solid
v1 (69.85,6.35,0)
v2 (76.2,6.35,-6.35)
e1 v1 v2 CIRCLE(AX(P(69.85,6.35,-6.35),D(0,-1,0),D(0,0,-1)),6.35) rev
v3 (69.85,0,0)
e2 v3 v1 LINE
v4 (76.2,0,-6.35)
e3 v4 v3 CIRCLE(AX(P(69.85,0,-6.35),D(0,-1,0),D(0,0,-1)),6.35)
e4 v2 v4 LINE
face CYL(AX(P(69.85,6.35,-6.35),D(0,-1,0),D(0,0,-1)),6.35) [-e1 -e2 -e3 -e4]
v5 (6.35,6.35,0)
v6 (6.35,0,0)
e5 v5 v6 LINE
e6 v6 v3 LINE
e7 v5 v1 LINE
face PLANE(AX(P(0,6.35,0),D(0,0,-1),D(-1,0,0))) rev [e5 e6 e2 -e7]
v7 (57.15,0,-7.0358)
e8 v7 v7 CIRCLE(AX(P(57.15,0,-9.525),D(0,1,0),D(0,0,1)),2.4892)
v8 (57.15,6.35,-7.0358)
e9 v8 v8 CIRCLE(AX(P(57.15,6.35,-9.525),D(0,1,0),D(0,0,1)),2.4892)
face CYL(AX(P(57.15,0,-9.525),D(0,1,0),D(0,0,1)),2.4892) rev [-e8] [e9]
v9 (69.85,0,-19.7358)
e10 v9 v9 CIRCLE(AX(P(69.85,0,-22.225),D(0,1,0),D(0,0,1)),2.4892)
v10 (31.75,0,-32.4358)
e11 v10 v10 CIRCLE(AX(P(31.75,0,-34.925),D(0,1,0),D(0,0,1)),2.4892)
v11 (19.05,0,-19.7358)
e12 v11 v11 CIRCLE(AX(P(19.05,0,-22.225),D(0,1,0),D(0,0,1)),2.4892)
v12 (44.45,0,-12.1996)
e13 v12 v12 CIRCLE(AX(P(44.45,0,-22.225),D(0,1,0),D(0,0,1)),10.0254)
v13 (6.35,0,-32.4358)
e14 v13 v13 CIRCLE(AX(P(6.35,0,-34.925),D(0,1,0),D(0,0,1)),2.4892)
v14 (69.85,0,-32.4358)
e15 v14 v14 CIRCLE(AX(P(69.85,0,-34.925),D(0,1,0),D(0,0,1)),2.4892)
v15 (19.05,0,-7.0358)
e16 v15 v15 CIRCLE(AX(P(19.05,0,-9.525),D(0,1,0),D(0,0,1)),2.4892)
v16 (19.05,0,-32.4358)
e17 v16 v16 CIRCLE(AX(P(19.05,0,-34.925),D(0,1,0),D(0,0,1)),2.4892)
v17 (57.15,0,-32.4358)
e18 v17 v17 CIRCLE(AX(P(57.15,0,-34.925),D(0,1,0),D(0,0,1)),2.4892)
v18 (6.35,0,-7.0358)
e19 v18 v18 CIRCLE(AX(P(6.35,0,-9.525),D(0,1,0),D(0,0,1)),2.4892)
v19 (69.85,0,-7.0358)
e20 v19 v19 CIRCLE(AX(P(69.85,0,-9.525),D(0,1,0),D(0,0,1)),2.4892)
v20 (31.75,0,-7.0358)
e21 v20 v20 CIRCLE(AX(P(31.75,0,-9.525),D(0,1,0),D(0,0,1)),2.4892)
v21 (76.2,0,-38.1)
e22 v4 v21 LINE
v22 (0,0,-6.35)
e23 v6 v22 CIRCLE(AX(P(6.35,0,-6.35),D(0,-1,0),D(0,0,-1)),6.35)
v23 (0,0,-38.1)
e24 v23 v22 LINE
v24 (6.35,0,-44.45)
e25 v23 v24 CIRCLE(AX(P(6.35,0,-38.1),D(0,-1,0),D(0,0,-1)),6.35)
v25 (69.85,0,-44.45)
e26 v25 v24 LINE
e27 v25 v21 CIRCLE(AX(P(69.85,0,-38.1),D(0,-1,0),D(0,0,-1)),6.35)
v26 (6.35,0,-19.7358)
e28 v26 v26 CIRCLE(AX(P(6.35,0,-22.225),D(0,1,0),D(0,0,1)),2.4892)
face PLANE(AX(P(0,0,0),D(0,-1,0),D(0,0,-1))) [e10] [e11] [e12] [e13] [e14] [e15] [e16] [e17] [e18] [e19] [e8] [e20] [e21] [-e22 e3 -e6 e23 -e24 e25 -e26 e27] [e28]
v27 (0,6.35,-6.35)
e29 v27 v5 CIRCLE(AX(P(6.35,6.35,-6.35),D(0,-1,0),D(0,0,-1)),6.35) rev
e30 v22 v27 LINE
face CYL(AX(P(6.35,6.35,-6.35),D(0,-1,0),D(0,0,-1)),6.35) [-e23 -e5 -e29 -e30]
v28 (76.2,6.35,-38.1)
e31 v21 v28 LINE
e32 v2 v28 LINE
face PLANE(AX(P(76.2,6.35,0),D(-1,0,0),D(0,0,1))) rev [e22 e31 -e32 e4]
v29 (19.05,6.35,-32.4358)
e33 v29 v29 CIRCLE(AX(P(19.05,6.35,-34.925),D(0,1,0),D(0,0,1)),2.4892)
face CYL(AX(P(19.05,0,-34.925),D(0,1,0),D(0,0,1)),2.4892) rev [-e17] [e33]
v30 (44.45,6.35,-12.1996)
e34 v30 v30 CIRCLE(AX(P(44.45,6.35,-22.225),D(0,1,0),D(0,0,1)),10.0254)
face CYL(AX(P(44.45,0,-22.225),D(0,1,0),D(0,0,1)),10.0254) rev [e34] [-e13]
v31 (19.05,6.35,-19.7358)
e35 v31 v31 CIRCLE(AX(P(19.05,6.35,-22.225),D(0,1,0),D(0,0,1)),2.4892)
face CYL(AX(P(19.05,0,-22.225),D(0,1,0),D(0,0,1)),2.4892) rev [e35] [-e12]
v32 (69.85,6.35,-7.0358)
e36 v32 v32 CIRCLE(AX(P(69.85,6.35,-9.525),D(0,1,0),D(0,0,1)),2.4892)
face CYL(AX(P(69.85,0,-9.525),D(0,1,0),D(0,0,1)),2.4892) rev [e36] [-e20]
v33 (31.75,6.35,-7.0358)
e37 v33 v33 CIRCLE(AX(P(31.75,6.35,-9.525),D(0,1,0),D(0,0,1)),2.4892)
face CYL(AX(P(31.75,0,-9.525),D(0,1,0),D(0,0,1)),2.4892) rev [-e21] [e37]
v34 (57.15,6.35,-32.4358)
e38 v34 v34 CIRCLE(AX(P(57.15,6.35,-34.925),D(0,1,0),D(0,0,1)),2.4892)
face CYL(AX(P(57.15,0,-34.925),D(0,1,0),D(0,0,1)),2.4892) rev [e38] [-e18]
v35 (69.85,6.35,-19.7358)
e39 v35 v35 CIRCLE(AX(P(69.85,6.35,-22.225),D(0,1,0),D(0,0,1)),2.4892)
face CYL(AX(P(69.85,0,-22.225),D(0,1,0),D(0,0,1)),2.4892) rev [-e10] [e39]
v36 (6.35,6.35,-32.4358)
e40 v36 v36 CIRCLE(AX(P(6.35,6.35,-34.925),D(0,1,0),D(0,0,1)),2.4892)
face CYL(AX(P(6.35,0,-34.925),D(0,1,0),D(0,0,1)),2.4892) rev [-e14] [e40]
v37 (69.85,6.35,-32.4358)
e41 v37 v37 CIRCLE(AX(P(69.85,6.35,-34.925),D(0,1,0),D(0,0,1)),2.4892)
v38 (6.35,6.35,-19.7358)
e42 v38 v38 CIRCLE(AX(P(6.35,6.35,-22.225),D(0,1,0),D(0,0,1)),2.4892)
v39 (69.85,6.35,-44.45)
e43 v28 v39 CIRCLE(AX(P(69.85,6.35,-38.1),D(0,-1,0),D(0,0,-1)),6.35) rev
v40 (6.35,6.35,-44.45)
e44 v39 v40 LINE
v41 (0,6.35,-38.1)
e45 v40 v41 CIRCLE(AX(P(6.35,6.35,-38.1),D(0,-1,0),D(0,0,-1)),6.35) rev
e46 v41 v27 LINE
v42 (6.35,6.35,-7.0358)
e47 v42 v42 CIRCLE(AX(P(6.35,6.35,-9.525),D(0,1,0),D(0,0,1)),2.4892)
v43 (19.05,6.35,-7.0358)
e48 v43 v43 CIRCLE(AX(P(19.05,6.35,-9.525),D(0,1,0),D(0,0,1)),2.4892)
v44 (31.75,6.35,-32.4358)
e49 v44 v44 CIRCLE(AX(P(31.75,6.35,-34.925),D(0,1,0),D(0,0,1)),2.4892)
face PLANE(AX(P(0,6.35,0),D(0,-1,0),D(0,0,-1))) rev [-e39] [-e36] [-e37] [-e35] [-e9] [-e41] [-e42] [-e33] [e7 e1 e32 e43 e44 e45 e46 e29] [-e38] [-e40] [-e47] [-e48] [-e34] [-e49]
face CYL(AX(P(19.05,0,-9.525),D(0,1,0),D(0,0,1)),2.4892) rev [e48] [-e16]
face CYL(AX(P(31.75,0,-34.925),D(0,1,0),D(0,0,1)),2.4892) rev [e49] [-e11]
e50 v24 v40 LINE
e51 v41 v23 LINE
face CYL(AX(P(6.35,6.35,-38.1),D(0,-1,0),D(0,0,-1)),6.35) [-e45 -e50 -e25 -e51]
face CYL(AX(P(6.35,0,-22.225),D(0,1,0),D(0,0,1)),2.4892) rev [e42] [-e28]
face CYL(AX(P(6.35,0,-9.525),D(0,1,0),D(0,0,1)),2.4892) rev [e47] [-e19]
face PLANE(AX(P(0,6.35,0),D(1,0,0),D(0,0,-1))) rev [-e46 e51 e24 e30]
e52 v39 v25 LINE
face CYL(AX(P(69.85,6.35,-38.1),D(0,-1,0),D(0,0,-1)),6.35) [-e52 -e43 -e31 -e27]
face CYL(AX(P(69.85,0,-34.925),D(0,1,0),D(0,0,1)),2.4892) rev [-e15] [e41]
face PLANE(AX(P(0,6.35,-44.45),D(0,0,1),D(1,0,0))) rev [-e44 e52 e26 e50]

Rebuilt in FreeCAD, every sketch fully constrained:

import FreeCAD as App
import Part
import Sketcher
Q = App.Units.Quantity


def edges_at(feature, points):
    """Names of the edges that pass closest to the given points."""
    edges = feature.Shape.Edges
    near = lambda p: min(range(len(edges)), key=lambda i: edges[i].distToShape(Part.Vertex(*p))[0])
    return sorted({f"Edge{near(p) + 1}" for p in points})


def add_polygon(sketch, points):
    """Adds a closed chain of lines whose ends are joined by coincident constraints."""
    first, n = sketch.GeometryCount, len(points)
    for a, b in zip(points, points[1:] + points[:1]):
        sketch.addGeometry(Part.LineSegment(App.Vector(*a, 0), App.Vector(*b, 0)), False)
    for i in range(n):
        sketch.addConstraint(Sketcher.Constraint("Coincident", first + i, 2, first + (i + 1) % n, 1))

doc = App.newDocument("Part")
params = doc.addObject("Spreadsheet::Sheet", "Params")
for row, (alias, value) in enumerate([
    ("sketch1_width", "3 in"),
    ("sketch1_height", "1.75 in"),
    ("pad1_length", "0.25 in"),
    ("fillet_radius", "0.25 in"),
    ("sketch2_diameter", "0.196 in"),
], start=1):
    params.set(f"A{row}", alias)
    params.set(f"B{row}", "=" + value)
    params.setAlias(f"B{row}", alias)

body = doc.addObject("PartDesign::Body", "Body")

# Sketch on XZ plane
sketch1 = body.newObject("Sketcher::SketchObject", "Sketch")
sketch1.AttachmentSupport = (doc.getObject("XZ_Plane"), [""])
sketch1.MapMode = "FlatFace"
add_polygon(sketch1, [(0, -44.45), (0, 0), (76.2, 0), (76.2, -44.45)])  # lines 0-3
sketch1.addConstraint(Sketcher.Constraint("Vertical", 0))
sketch1.addConstraint(Sketcher.Constraint("Horizontal", 1))
sketch1.addConstraint(Sketcher.Constraint("Vertical", 2))
sketch1.addConstraint(Sketcher.Constraint("Horizontal", 3))
sketch1.addConstraint(Sketcher.Constraint("Coincident", 0, 2, -1, 1))
sketch1.addConstraint(Sketcher.Constraint("DistanceX", 1, 1, 1, 2, Q("3 in")))
sketch1.addConstraint(Sketcher.Constraint("DistanceY", 0, 1, 0, 2, Q("1.75 in")))
sketch1.setExpression("Constraints[9]", "Params.sketch1_width")
sketch1.setExpression("Constraints[10]", "Params.sketch1_height")
pad1 = body.newObject("PartDesign::Pad", "Pad")
pad1.Profile = sketch1
pad1.setExpression("Length", "Params.pad1_length")
pad1.Reversed = True
doc.recompute()

fillet = body.newObject("PartDesign::Fillet", "Fillet")
fillet.Base = (pad1, edges_at(pad1, [
    (0, 3.175, -44.45),
    (76.2, 3.175, -44.45),
    (76.2, 3.175, 0),
    (0, 3.175, 0),
]))
fillet.setExpression("Radius", "Params.fillet_radius")

# Sketch on XZ plane
sketch2 = body.newObject("Sketcher::SketchObject", "Sketch001")
sketch2.AttachmentSupport = (doc.getObject("XZ_Plane"), [""])
sketch2.MapMode = "FlatFace"
sketch2.AttachmentOffset = App.Placement(App.Vector(0, 0, -0.25 * 25.4), App.Rotation())
sketch2.addGeometry(Part.Circle(App.Vector(31.75, -34.925, 0), App.Vector(0, 0, 1), 2.4892), False)
sketch2.addGeometry(Part.Circle(App.Vector(6.35, -34.925, 0), App.Vector(0, 0, 1), 2.4892), False)
sketch2.addGeometry(Part.Circle(App.Vector(19.05, -34.925, 0), App.Vector(0, 0, 1), 2.4892), False)
sketch2.addGeometry(Part.Circle(App.Vector(19.05, -22.225, 0), App.Vector(0, 0, 1), 2.4892), False)
sketch2.addGeometry(Part.Circle(App.Vector(6.35, -22.225, 0), App.Vector(0, 0, 1), 2.4892), False)
sketch2.addGeometry(Part.Circle(App.Vector(6.35, -9.525, 0), App.Vector(0, 0, 1), 2.4892), False)
sketch2.addGeometry(Part.Circle(App.Vector(19.05, -9.525, 0), App.Vector(0, 0, 1), 2.4892), False)
sketch2.addGeometry(Part.Circle(App.Vector(31.75, -9.525, 0), App.Vector(0, 0, 1), 2.4892), False)
sketch2.addGeometry(Part.Circle(App.Vector(57.15, -9.525, 0), App.Vector(0, 0, 1), 2.4892), False)
sketch2.addGeometry(Part.Circle(App.Vector(69.85, -9.525, 0), App.Vector(0, 0, 1), 2.4892), False)
sketch2.addGeometry(Part.Circle(App.Vector(69.85, -22.225, 0), App.Vector(0, 0, 1), 2.4892), False)
sketch2.addGeometry(Part.Circle(App.Vector(69.85, -34.925, 0), App.Vector(0, 0, 1), 2.4892), False)
sketch2.addGeometry(Part.Circle(App.Vector(57.15, -34.925, 0), App.Vector(0, 0, 1), 2.4892), False)
sketch2.addGeometry(Part.Circle(App.Vector(44.45, -22.225, 0), App.Vector(0, 0, 1), 10.0254), False)
sketch2.addConstraint(Sketcher.Constraint("Equal", 0, 1))
sketch2.addConstraint(Sketcher.Constraint("Equal", 1, 2))
sketch2.addConstraint(Sketcher.Constraint("Equal", 2, 3))
sketch2.addConstraint(Sketcher.Constraint("Equal", 3, 4))
sketch2.addConstraint(Sketcher.Constraint("Equal", 4, 5))
sketch2.addConstraint(Sketcher.Constraint("Equal", 5, 6))
sketch2.addConstraint(Sketcher.Constraint("Equal", 6, 7))
sketch2.addConstraint(Sketcher.Constraint("Equal", 7, 8))
sketch2.addConstraint(Sketcher.Constraint("Equal", 8, 9))
sketch2.addConstraint(Sketcher.Constraint("Equal", 9, 10))
sketch2.addConstraint(Sketcher.Constraint("Equal", 10, 11))
sketch2.addConstraint(Sketcher.Constraint("Equal", 11, 12))
sketch2.addConstraint(Sketcher.Constraint("Horizontal", 0, 3, 1, 3))
sketch2.addConstraint(Sketcher.Constraint("Horizontal", 1, 3, 2, 3))
sketch2.addConstraint(Sketcher.Constraint("Horizontal", 3, 3, 4, 3))
sketch2.addConstraint(Sketcher.Constraint("Horizontal", 5, 3, 6, 3))
sketch2.addConstraint(Sketcher.Constraint("Horizontal", 6, 3, 7, 3))
sketch2.addConstraint(Sketcher.Constraint("Horizontal", 7, 3, 8, 3))
sketch2.addConstraint(Sketcher.Constraint("Horizontal", 8, 3, 9, 3))
sketch2.addConstraint(Sketcher.Constraint("Horizontal", 4, 3, 10, 3))
sketch2.addConstraint(Sketcher.Constraint("Horizontal", 2, 3, 11, 3))
sketch2.addConstraint(Sketcher.Constraint("Horizontal", 11, 3, 12, 3))
sketch2.addConstraint(Sketcher.Constraint("Horizontal", 10, 3, 13, 3))
sketch2.addConstraint(Sketcher.Constraint("Vertical", 2, 3, 3, 3))
sketch2.addConstraint(Sketcher.Constraint("Vertical", 1, 3, 4, 3))
sketch2.addConstraint(Sketcher.Constraint("Vertical", 4, 3, 5, 3))
sketch2.addConstraint(Sketcher.Constraint("Vertical", 3, 3, 6, 3))
sketch2.addConstraint(Sketcher.Constraint("Vertical", 0, 3, 7, 3))
sketch2.addConstraint(Sketcher.Constraint("Vertical", 9, 3, 10, 3))
sketch2.addConstraint(Sketcher.Constraint("Vertical", 10, 3, 11, 3))
sketch2.addConstraint(Sketcher.Constraint("Vertical", 8, 3, 12, 3))
sketch2.addConstraint(Sketcher.Constraint("Diameter", 0, Q("0.196 in")))
sketch2.addConstraint(Sketcher.Constraint("DistanceX", 1, 3, 0, 3, Q("1 in")))
sketch2.addConstraint(Sketcher.Constraint("DistanceY", 1, 3, 5, 3, Q("1 in")))
sketch2.addConstraint(Sketcher.Constraint("DistanceX", 7, 3, 8, 3, Q("1 in")))
sketch2.addConstraint(Sketcher.Constraint("DistanceX", 6, 3, 9, 3, Q("2 in")))
sketch2.addConstraint(Sketcher.Constraint("DistanceX", 13, 3, 10, 3, Q("1 in")))
sketch2.addConstraint(Sketcher.Constraint("DistanceX", 2, 3, 0, 3, Q("0.5 in")))
sketch2.addConstraint(Sketcher.Constraint("DistanceY", 2, 3, 3, 3, Q("0.5 in")))
sketch2.addConstraint(Sketcher.Constraint("Diameter", 13, Q("20.0508 mm")))
sketch2.addConstraint(Sketcher.Constraint("DistanceX", -1, 1, 0, 3, Q("1.25 in")))
sketch2.addConstraint(Sketcher.Constraint("DistanceY", 0, 3, -1, 1, Q("1.375 in")))
sketch2.setExpression("Constraints[31]", "Params.sketch2_diameter")
pocket1 = body.newObject("PartDesign::Pocket", "Pocket")
pocket1.Profile = sketch2
pocket1.Type = "ThroughAll"
pocket1.Reversed = True

doc.recompute()
